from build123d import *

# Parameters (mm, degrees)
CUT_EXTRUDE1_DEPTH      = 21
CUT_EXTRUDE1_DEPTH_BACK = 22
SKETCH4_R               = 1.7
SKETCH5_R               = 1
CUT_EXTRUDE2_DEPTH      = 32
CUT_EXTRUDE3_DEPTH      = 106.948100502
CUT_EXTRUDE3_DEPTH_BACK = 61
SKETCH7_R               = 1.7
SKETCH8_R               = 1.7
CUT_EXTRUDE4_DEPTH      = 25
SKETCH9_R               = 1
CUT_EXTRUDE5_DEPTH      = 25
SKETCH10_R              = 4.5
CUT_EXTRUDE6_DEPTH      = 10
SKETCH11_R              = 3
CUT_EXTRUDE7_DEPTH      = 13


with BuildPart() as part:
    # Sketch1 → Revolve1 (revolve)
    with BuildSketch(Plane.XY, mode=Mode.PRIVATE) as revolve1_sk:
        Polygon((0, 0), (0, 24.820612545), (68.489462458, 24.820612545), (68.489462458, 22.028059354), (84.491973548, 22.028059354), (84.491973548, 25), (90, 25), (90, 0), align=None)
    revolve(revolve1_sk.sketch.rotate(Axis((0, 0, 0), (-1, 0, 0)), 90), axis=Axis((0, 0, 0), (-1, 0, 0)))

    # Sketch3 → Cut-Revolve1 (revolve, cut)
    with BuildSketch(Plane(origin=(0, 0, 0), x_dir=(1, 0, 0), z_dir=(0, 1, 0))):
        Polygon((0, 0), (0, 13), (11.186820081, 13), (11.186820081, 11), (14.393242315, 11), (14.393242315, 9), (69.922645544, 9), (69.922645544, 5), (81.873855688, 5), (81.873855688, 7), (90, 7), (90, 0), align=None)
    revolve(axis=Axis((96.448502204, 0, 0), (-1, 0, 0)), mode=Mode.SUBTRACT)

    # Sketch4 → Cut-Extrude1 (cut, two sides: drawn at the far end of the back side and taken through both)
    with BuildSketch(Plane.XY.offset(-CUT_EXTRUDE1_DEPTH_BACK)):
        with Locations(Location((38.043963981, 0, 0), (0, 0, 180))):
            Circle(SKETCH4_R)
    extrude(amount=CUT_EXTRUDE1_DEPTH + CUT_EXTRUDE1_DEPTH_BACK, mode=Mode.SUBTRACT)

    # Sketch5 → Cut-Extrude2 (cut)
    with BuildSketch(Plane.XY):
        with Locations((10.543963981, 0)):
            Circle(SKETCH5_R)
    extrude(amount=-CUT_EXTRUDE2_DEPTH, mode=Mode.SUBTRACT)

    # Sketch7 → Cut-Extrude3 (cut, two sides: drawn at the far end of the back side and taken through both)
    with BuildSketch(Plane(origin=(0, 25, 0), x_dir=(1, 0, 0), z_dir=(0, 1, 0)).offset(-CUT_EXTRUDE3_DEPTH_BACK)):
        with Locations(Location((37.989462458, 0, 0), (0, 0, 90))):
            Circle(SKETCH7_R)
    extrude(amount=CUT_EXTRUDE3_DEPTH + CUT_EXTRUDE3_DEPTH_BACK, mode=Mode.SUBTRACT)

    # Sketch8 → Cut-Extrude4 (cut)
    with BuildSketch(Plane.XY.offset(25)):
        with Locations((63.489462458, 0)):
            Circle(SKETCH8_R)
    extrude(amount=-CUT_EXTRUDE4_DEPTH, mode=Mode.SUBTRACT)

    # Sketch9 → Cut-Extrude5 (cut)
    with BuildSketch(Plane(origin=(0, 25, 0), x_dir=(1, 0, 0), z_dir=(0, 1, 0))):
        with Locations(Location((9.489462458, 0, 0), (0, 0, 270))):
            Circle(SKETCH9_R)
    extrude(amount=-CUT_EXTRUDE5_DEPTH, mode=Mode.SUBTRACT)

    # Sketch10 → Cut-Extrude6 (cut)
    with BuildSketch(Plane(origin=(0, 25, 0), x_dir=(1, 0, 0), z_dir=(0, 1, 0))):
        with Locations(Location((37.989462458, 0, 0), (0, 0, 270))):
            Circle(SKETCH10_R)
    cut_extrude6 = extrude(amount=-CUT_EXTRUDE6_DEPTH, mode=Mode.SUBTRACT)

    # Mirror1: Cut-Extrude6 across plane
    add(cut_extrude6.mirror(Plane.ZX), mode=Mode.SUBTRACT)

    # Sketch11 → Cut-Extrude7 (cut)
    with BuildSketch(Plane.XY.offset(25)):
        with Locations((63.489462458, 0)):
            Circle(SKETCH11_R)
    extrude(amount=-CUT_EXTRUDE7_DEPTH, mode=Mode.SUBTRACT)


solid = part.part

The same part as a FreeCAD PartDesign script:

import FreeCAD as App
import Part
import Sketcher
from FreeCAD import Vector
Q = App.Units.Quantity

doc = App.newDocument("Part")
body = doc.addObject("PartDesign::Body", "Body")

# Sketch on XY plane
sketch1 = doc.addObject("Sketcher::SketchObject", "Sketch")
body.addObject(sketch1)
sketch1.AttachmentSupport = (doc.XY_Plane, [""])
sketch1.MapMode = "FlatFace"
sketch1.addGeometry([
    Part.LineSegment(Vector(0, 24.8, 0), Vector(0, 0, 0)),  # 0
    Part.LineSegment(Vector(0, 0, 0), Vector(90, 0, 0)),  # 1
    Part.LineSegment(Vector(90, 0, 0), Vector(90, 25, 0)),  # 2
    Part.LineSegment(Vector(90, 25, 0), Vector(84.5, 25, 0)),  # 3
    Part.LineSegment(Vector(84.5, 25, 0), Vector(84.5, 22, 0)),  # 4
    Part.LineSegment(Vector(84.5, 22, 0), Vector(68.5, 22, 0)),  # 5
    Part.LineSegment(Vector(68.5, 22, 0), Vector(68.5, 24.8, 0)),  # 6
    Part.LineSegment(Vector(68.5, 24.8, 0), Vector(0, 24.8, 0)),  # 7
], False)
sketch1.addConstraint([
    Sketcher.Constraint("Coincident", 0, 2, 1, 1),
    Sketcher.Constraint("Coincident", 1, 2, 2, 1),
    Sketcher.Constraint("Coincident", 2, 2, 3, 1),
    Sketcher.Constraint("Coincident", 3, 2, 4, 1),
    Sketcher.Constraint("Coincident", 4, 2, 5, 1),
    Sketcher.Constraint("Coincident", 5, 2, 6, 1),
    Sketcher.Constraint("Coincident", 6, 2, 7, 1),
    Sketcher.Constraint("Coincident", 7, 2, 0, 1),
    Sketcher.Constraint("Vertical", 0),
    Sketcher.Constraint("Horizontal", 1),
    Sketcher.Constraint("Vertical", 2),
    Sketcher.Constraint("Horizontal", 3),
    Sketcher.Constraint("Vertical", 4),
    Sketcher.Constraint("Horizontal", 5),
    Sketcher.Constraint("Vertical", 6),
    Sketcher.Constraint("Horizontal", 7),
    Sketcher.Constraint("Coincident", 0, 2, -1, 1),
    Sketcher.Constraint("DistanceX", 1, 1, 1, 2, Q("90 mm")),
    Sketcher.Constraint("DistanceY", 2, 1, 2, 2, Q("25 mm")),
    Sketcher.Constraint("DistanceX", 5, 2, 5, 1, Q("16.002511 mm")),
    Sketcher.Constraint("DistanceY", 4, 2, 4, 1, Q("2.971941 mm")),
    Sketcher.Constraint("DistanceX", 3, 2, 3, 1, Q("5.508026 mm")),
    Sketcher.Constraint("DistanceY", 0, 2, 0, 1, Q("24.820613 mm")),
])
revolution = doc.addObject("PartDesign::Revolution", "Revolution")
body.addObject(revolution)
revolution.Profile = sketch1
revolution.ReferenceAxis = (sketch1, ["H_Axis"])
revolution.Angle = 360

# Sketch on XZ plane
sketch2 = doc.addObject("Sketcher::SketchObject", "Sketch001")
body.addObject(sketch2)
sketch2.AttachmentSupport = (doc.XZ_Plane, [""])
sketch2.MapMode = "FlatFace"
sketch2.addGeometry([
    Part.LineSegment(Vector(0, -13, 0), Vector(0, 0, 0)),  # 0
    Part.LineSegment(Vector(0, 0, 0), Vector(90, 0, 0)),  # 1
    Part.LineSegment(Vector(90, 0, 0), Vector(90, -7, 0)),  # 2
    Part.LineSegment(Vector(90, -7, 0), Vector(81.9, -7, 0)),  # 3
    Part.LineSegment(Vector(81.9, -7, 0), Vector(81.9, -5, 0)),  # 4
    Part.LineSegment(Vector(81.9, -5, 0), Vector(69.9, -5, 0)),  # 5
    Part.LineSegment(Vector(69.9, -5, 0), Vector(69.9, -9, 0)),  # 6
    Part.LineSegment(Vector(69.9, -9, 0), Vector(14.4, -9, 0)),  # 7
    Part.LineSegment(Vector(14.4, -9, 0), Vector(14.4, -11, 0)),  # 8
    Part.LineSegment(Vector(14.4, -11, 0), Vector(11.2, -11, 0)),  # 9
    Part.LineSegment(Vector(11.2, -11, 0), Vector(11.2, -13, 0)),  # 10
    Part.LineSegment(Vector(11.2, -13, 0), Vector(0, -13, 0)),  # 11
], False)
sketch2.addConstraint([
    Sketcher.Constraint("Coincident", 0, 2, 1, 1),
    Sketcher.Constraint("Coincident", 1, 2, 2, 1),
    Sketcher.Constraint("Coincident", 2, 2, 3, 1),
    Sketcher.Constraint("Coincident", 3, 2, 4, 1),
    Sketcher.Constraint("Coincident", 4, 2, 5, 1),
    Sketcher.Constraint("Coincident", 5, 2, 6, 1),
    Sketcher.Constraint("Coincident", 6, 2, 7, 1),
    Sketcher.Constraint("Coincident", 7, 2, 8, 1),
    Sketcher.Constraint("Coincident", 8, 2, 9, 1),
    Sketcher.Constraint("Coincident", 9, 2, 10, 1),
    Sketcher.Constraint("Coincident", 10, 2, 11, 1),
    Sketcher.Constraint("Coincident", 11, 2, 0, 1),
    Sketcher.Constraint("Vertical", 0),
    Sketcher.Constraint("Horizontal", 1),
    Sketcher.Constraint("Vertical", 2),
    Sketcher.Constraint("Horizontal", 3),
    Sketcher.Constraint("Vertical", 4),
    Sketcher.Constraint("Horizontal", 5),
    Sketcher.Constraint("Vertical", 6),
    Sketcher.Constraint("Horizontal", 7),
    Sketcher.Constraint("Vertical", 8),
    Sketcher.Constraint("Horizontal", 9),
    Sketcher.Constraint("Vertical", 10),
    Sketcher.Constraint("Horizontal", 11),
    Sketcher.Constraint("Coincident", 0, 2, -1, 1),
    Sketcher.Constraint("Equal", 4, 8),
    Sketcher.Constraint("Equal", 8, 10),
    Sketcher.Constraint("DistanceX", 1, 1, 1, 2, Q("90 mm")),
    Sketcher.Constraint("DistanceY", 0, 1, 0, 2, Q("13 mm")),
    Sketcher.Constraint("DistanceY", 2, 2, 2, 1, Q("7 mm")),
    Sketcher.Constraint("DistanceY", 4, 1, 4, 2, Q("2 mm")),
    Sketcher.Constraint("DistanceX", 5, 2, 5, 1, Q("11.95121 mm")),
    Sketcher.Constraint("DistanceX", 11, 2, 11, 1, Q("11.18682 mm")),
    Sketcher.Constraint("DistanceX", 3, 2, 3, 1, Q("8.126144 mm")),
    Sketcher.Constraint("DistanceX", 7, 2, 7, 1, Q("55.529403 mm")),
])
groove = doc.addObject("PartDesign::Groove", "Groove")
body.addObject(groove)
groove.Profile = sketch2
groove.ReferenceAxis = (sketch2, ["H_Axis"])
groove.Angle = 360

# Sketch on XY plane
sketch3 = doc.addObject("Sketcher::SketchObject", "Sketch002")
body.addObject(sketch3)
sketch3.AttachmentSupport = (doc.XY_Plane, [""])
sketch3.MapMode = "FlatFace"
sketch3.addGeometry(Part.Circle(Vector(38, 0, 0), Vector(0, 0, 1), 1.7), False)
sketch3.addConstraint([
    Sketcher.Constraint("PointOnObject", 0, 3, -1),
    Sketcher.Constraint("Diameter", 0, Q("3.4 mm")),
    Sketcher.Constraint("DistanceX", -1, 1, 0, 3, Q("38.043964 mm")),
])
pocket1 = doc.addObject("PartDesign::Pocket", "Pocket")
body.addObject(pocket1)
pocket1.Profile = sketch3
pocket1.Type = "TwoLengths"
pocket1.Length = 21
pocket1.Length2 = 22
pocket1.Reversed = True

# Sketch on XY plane
sketch4 = doc.addObject("Sketcher::SketchObject", "Sketch003")
body.addObject(sketch4)
sketch4.AttachmentSupport = (doc.XY_Plane, [""])
sketch4.MapMode = "FlatFace"
sketch4.addGeometry(Part.Circle(Vector(10.5, 0, 0), Vector(0, 0, 1), 1), False)
sketch4.addConstraint([
    Sketcher.Constraint("PointOnObject", 0, 3, -1),
    Sketcher.Constraint("Diameter", 0, Q("2 mm")),
    Sketcher.Constraint("DistanceX", -1, 1, 0, 3, Q("10.543964 mm")),
])
pocket2 = doc.addObject("PartDesign::Pocket", "Pocket001")
body.addObject(pocket2)
pocket2.Profile = sketch4
pocket2.Length = 32

# Sketch on XZ plane
sketch5 = doc.addObject("Sketcher::SketchObject", "Sketch004")
body.addObject(sketch5)
sketch5.AttachmentSupport = (doc.XZ_Plane, [""])
sketch5.MapMode = "FlatFace"
sketch5.AttachmentOffset = App.Placement(Vector(0, 0, -25), App.Rotation())
sketch5.addGeometry(Part.Circle(Vector(38, 0, 0), Vector(0, 0, 1), 1.7), False)
sketch5.addConstraint([
    Sketcher.Constraint("PointOnObject", 0, 3, -1),
    Sketcher.Constraint("Diameter", 0, Q("3.4 mm")),
    Sketcher.Constraint("DistanceX", -1, 1, 0, 3, Q("37.989462 mm")),
])
pocket3 = doc.addObject("PartDesign::Pocket", "Pocket002")
body.addObject(pocket3)
pocket3.Profile = sketch5
pocket3.Type = "ThroughAll"
pocket3.Midplane = True

# Sketch on XY plane
sketch6 = doc.addObject("Sketcher::SketchObject", "Sketch005")
body.addObject(sketch6)
sketch6.AttachmentSupport = (doc.XY_Plane, [""])
sketch6.MapMode = "FlatFace"
sketch6.AttachmentOffset = App.Placement(Vector(0, 0, 25), App.Rotation())
sketch6.addGeometry(Part.Circle(Vector(63.5, 0, 0), Vector(0, 0, 1), 1.7), False)
sketch6.addConstraint([
    Sketcher.Constraint("PointOnObject", 0, 3, -1),
    Sketcher.Constraint("Diameter", 0, Q("3.4 mm")),
    Sketcher.Constraint("DistanceX", -1, 1, 0, 3, Q("63.489462 mm")),
])
pocket4 = doc.addObject("PartDesign::Pocket", "Pocket003")
body.addObject(pocket4)
pocket4.Profile = sketch6
pocket4.Length = 25

# Sketch on XZ plane
sketch7 = doc.addObject("Sketcher::SketchObject", "Sketch006")
body.addObject(sketch7)
sketch7.AttachmentSupport = (doc.XZ_Plane, [""])
sketch7.MapMode = "FlatFace"
sketch7.AttachmentOffset = App.Placement(Vector(0, 0, -25), App.Rotation())
sketch7.addGeometry(Part.Circle(Vector(9.5, 0, 0), Vector(0, 0, 1), 1), False)
sketch7.addConstraint([
    Sketcher.Constraint("PointOnObject", 0, 3, -1),
    Sketcher.Constraint("Diameter", 0, Q("2 mm")),
    Sketcher.Constraint("DistanceX", -1, 1, 0, 3, Q("9.489462 mm")),
])
pocket5 = doc.addObject("PartDesign::Pocket", "Pocket004")
body.addObject(pocket5)
pocket5.Profile = sketch7
pocket5.Length = 25
pocket5.Reversed = True

# Sketch on XZ plane
sketch8 = doc.addObject("Sketcher::SketchObject", "Sketch007")
body.addObject(sketch8)
sketch8.AttachmentSupport = (doc.XZ_Plane, [""])
sketch8.MapMode = "FlatFace"
sketch8.AttachmentOffset = App.Placement(Vector(0, 0, -25), App.Rotation())
sketch8.addGeometry(Part.Circle(Vector(38, 0, 0), Vector(0, 0, 1), 4.5), False)
sketch8.addConstraint([
    Sketcher.Constraint("PointOnObject", 0, 3, -1),
    Sketcher.Constraint("Diameter", 0, Q("9 mm")),
    Sketcher.Constraint("DistanceX", -1, 1, 0, 3, Q("37.989462 mm")),
])
pocket6 = doc.addObject("PartDesign::Pocket", "Pocket005")
body.addObject(pocket6)
pocket6.Profile = sketch8
pocket6.Length = 10
pocket6.Reversed = True
doc.recompute()

mirrored = doc.addObject("PartDesign::Mirrored", "Mirrored")
body.addObject(mirrored)
mirrored.Originals = [pocket6]
mirrored.MirrorPlane = (doc.XZ_Plane, [""])
body.Tip = mirrored

# Sketch on XY plane
sketch9 = doc.addObject("Sketcher::SketchObject", "Sketch008")
body.addObject(sketch9)
sketch9.AttachmentSupport = (doc.XY_Plane, [""])
sketch9.MapMode = "FlatFace"
sketch9.AttachmentOffset = App.Placement(Vector(0, 0, 25), App.Rotation())
sketch9.addGeometry(Part.Circle(Vector(63.5, 0, 0), Vector(0, 0, 1), 3), False)
sketch9.addConstraint([
    Sketcher.Constraint("PointOnObject", 0, 3, -1),
    Sketcher.Constraint("Diameter", 0, Q("6 mm")),
    Sketcher.Constraint("DistanceX", -1, 1, 0, 3, Q("63.489462 mm")),
])
pocket7 = doc.addObject("PartDesign::Pocket", "Pocket006")
body.addObject(pocket7)
pocket7.Profile = sketch9
pocket7.Length = 13

doc.recompute()
